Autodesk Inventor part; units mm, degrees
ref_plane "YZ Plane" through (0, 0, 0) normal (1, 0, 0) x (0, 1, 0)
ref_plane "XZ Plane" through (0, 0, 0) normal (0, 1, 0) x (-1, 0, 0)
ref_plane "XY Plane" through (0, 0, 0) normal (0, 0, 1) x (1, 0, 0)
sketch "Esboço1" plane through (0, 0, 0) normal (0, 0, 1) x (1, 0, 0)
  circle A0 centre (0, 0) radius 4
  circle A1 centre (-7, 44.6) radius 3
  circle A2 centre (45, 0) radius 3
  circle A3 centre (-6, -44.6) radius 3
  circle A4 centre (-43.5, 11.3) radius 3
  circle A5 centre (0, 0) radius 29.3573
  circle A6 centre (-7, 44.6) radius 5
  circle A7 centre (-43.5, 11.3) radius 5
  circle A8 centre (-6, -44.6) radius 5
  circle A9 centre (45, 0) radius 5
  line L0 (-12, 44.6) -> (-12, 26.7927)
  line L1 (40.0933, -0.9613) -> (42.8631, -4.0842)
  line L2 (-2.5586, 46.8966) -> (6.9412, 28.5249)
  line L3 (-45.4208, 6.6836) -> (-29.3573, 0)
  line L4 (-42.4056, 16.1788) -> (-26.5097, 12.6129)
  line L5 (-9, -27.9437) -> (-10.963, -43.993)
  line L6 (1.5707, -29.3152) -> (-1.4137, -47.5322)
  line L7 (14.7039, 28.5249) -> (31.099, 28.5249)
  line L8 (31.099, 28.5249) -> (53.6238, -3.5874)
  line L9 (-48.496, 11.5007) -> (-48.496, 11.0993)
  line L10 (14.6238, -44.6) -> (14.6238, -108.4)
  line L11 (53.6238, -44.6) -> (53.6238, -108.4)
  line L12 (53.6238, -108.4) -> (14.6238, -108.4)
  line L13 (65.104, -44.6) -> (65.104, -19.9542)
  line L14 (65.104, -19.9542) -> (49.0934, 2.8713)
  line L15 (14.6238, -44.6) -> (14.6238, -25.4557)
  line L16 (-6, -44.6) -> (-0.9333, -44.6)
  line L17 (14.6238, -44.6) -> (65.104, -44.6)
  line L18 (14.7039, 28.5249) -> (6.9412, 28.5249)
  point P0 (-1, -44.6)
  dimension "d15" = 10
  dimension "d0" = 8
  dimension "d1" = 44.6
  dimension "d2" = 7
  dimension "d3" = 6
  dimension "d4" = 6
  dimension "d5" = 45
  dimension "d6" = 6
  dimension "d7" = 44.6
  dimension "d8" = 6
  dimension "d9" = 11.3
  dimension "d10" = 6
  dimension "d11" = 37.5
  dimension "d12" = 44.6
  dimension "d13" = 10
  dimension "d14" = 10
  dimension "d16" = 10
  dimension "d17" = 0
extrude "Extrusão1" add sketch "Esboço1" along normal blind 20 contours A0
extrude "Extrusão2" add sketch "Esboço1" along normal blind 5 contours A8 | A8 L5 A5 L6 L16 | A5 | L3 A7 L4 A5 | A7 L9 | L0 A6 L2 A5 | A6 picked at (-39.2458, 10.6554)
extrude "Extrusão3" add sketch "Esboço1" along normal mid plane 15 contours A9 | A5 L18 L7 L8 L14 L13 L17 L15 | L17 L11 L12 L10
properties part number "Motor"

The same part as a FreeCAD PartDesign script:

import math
import FreeCAD as App
import Part
import Sketcher

V = App.Vector
Q = App.Units.Quantity

doc = App.newDocument("Part")
body = doc.addObject("PartDesign::Body", "Body")

# Sketch on XY plane
sketch1 = body.newObject("Sketcher::SketchObject", "Sketch")
sketch1.AttachmentSupport = (doc.getObject("XY_Plane"), [""])
sketch1.MapMode = "FlatFace"
sketch1.addGeometry(Part.Circle(V(0, 0, 0), V(0, 0, 1), 4), False)
sketch1.addConstraint(Sketcher.Constraint("Coincident", 0, 3, -1, 1))
sketch1.addConstraint(Sketcher.Constraint("Diameter", 0, Q("8 mm")))
pad1 = body.newObject("PartDesign::Pad", "Pad")
pad1.Profile = sketch1
pad1.Length = 20

# Sketch on XY plane
sketch2 = body.newObject("Sketcher::SketchObject", "Sketch001")
sketch2.AttachmentSupport = (doc.getObject("XY_Plane"), [""])
sketch2.MapMode = "FlatFace"
sketch2.addGeometry(Part.LineSegment(V(-1, -44.6, 0), V(-0.93, -44.6, 0)), False)
sketch2.addGeometry(Part.LineSegment(V(-0.93, -44.6, 0), V(1.57, -29.32, 0)), False)
sketch2.addGeometry(Part.ArcOfCircle(Part.Circle(V(0, 0, 0), V(0, 0, 1), 29.36), math.radians(-87), math.radians(76)), False)
sketch2.addGeometry(Part.LineSegment(V(6.94, 28.52, 0), V(-2.56, 46.9, 0)), False)
sketch2.addGeometry(Part.ArcOfCircle(Part.Circle(V(-7, 44.6, 0), V(0, 0, 1), 5), math.radians(27), math.radians(180)), False)
sketch2.addGeometry(Part.LineSegment(V(-12, 44.6, 0), V(-12, 26.79, 0)), False)
sketch2.addGeometry(Part.ArcOfCircle(Part.Circle(V(0, 0, 0), V(0, 0, 1), 29.36), math.radians(114), math.radians(155)), False)
sketch2.addGeometry(Part.LineSegment(V(-26.51, 12.61, 0), V(-42.41, 16.18, 0)), False)
sketch2.addGeometry(Part.ArcOfCircle(Part.Circle(V(-43.5, 11.3, 0), V(0, 0, 1), 5), math.radians(77), math.radians(178)), False)
sketch2.addGeometry(Part.LineSegment(V(-48.5, 11.5, 0), V(-48.5, 11.1, 0)), False)
sketch2.addGeometry(Part.ArcOfCircle(Part.Circle(V(-43.5, 11.3, 0), V(0, 0, 1), 5), math.radians(-178), math.radians(-113)), False)
sketch2.addGeometry(Part.LineSegment(V(-45.42, 6.68, 0), V(-29.36, 0, 0)), False)
sketch2.addGeometry(Part.ArcOfCircle(Part.Circle(V(0, 0, 0), V(0, 0, 1), 29.36), math.radians(180), math.radians(252)), False)
sketch2.addGeometry(Part.LineSegment(V(-9, -27.94, 0), V(-10.96, -43.99, 0)), False)
sketch2.addGeometry(Part.ArcOfCircle(Part.Circle(V(-6, -44.6, 0), V(0, 0, 1), 5), math.radians(173), math.radians(360)), False)
sketch2.addGeometry(Part.Circle(V(-6, -44.6, 0), V(0, 0, 1), 3), False)
sketch2.addGeometry(Part.Circle(V(0, 0, 0), V(0, 0, 1), 4), False)
sketch2.addGeometry(Part.Circle(V(-43.5, 11.3, 0), V(0, 0, 1), 3), False)
sketch2.addGeometry(Part.Circle(V(-7, 44.6, 0), V(0, 0, 1), 3), False)
sketch2.addConstraint(Sketcher.Constraint("Coincident", 0, 2, 1, 1))
sketch2.addConstraint(Sketcher.Constraint("Coincident", 1, 2, 2, 1))
sketch2.addConstraint(Sketcher.Constraint("Coincident", 2, 2, 3, 1))
sketch2.addConstraint(Sketcher.Constraint("Tangent", 3, 2, 4, 1))
sketch2.addConstraint(Sketcher.Constraint("Tangent", 4, 2, 5, 1))
sketch2.addConstraint(Sketcher.Constraint("Coincident", 5, 2, 6, 1))
sketch2.addConstraint(Sketcher.Constraint("Coincident", 6, 2, 7, 1))
sketch2.addConstraint(Sketcher.Constraint("Tangent", 7, 2, 8, 1))
sketch2.addConstraint(Sketcher.Constraint("Coincident", 8, 2, 9, 1))
sketch2.addConstraint(Sketcher.Constraint("Coincident", 9, 2, 10, 1))
sketch2.addConstraint(Sketcher.Constraint("Tangent", 10, 2, 11, 1))
sketch2.addConstraint(Sketcher.Constraint("Coincident", 11, 2, 12, 1))
sketch2.addConstraint(Sketcher.Constraint("Coincident", 12, 2, 13, 1))
sketch2.addConstraint(Sketcher.Constraint("Tangent", 13, 2, 14, 1))
sketch2.addConstraint(Sketcher.Constraint("Coincident", 14, 2, 0, 1))
sketch2.addConstraint(Sketcher.Constraint("Horizontal", 0))
sketch2.addConstraint(Sketcher.Constraint("Vertical", 5))
sketch2.addConstraint(Sketcher.Constraint("Vertical", 9))
sketch2.addConstraint(Sketcher.Constraint("Coincident", 2, 3, -1, 1))
sketch2.addConstraint(Sketcher.Constraint("Coincident", 6, 3, -1, 1))
sketch2.addConstraint(Sketcher.Constraint("Coincident", 12, 3, -1, 1))
sketch2.addConstraint(Sketcher.Constraint("Coincident", 16, 3, -1, 1))
sketch2.addConstraint(Sketcher.Constraint("Coincident", 10, 3, 8, 3))
sketch2.addConstraint(Sketcher.Constraint("Coincident", 15, 3, 14, 3))
sketch2.addConstraint(Sketcher.Constraint("Coincident", 17, 3, 8, 3))
sketch2.addConstraint(Sketcher.Constraint("Coincident", 18, 3, 4, 3))
sketch2.addConstraint(Sketcher.Constraint("Equal", 2, 6))
sketch2.addConstraint(Sketcher.Constraint("Equal", 4, 8))
sketch2.addConstraint(Sketcher.Constraint("Equal", 8, 10))
sketch2.addConstraint(Sketcher.Constraint("Equal", 6, 12))
sketch2.addConstraint(Sketcher.Constraint("Equal", 10, 14))
sketch2.addConstraint(Sketcher.Constraint("Equal", 15, 17))
sketch2.addConstraint(Sketcher.Constraint("Equal", 17, 18))
sketch2.addConstraint(Sketcher.Constraint("PointOnObject", 11, 2, -1))
sketch2.addConstraint(Sketcher.Constraint("Horizontal", 15, 3, 0, 2))
sketch2.addConstraint(Sketcher.Constraint("Diameter", 15, Q("6 mm")))
sketch2.addConstraint(Sketcher.Constraint("Diameter", 16, Q("8 mm")))
sketch2.addConstraint(Sketcher.Constraint("Radius", 4, Q("5 mm")))
sketch2.addConstraint(Sketcher.Constraint("DistanceX", 4, 3, -1, 1, Q("7 mm")))
sketch2.addConstraint(Sketcher.Constraint("DistanceX", 14, 3, -1, 1, Q("6 mm")))
sketch2.addConstraint(Sketcher.Constraint("DistanceY", -1, 1, 4, 3, Q("44.6 mm")))
sketch2.addConstraint(Sketcher.Constraint("DistanceY", -1, 1, 8, 3, Q("11.3 mm")))
sketch2.addConstraint(Sketcher.Constraint("DistanceY", 14, 3, -1, 1, Q("44.6 mm")))
sketch2.addConstraint(Sketcher.Constraint("DistanceX", 8, 3, 14, 3, Q("37.5 mm")))
sketch2.addConstraint(Sketcher.Constraint("DistanceX", 12, 2, -1, 1, Q("9 mm")))
sketch2.addConstraint(Sketcher.Constraint("Angle", 11, Q("-22.591 deg")))
sketch2.addConstraint(Sketcher.Constraint("Distance", 7, Q("16.291 mm")))
sketch2.addConstraint(Sketcher.Constraint("DistanceX", 0, 1, 0, 2, Q("0.0667 mm")))
sketch2.addConstraint(Sketcher.Constraint("DistanceY", 9, 2, 9, 1, Q("0.4014 mm")))
sketch2.addConstraint(Sketcher.Constraint("DistanceY", -1, 1, 2, 2, Q("28.525 mm")))
sketch2.addConstraint(Sketcher.Constraint("DistanceX", 0, 2, 1, 2, Q("2.504 mm")))
pad2 = body.newObject("PartDesign::Pad", "Pad001")
pad2.Profile = sketch2
pad2.Length = 5

# Sketch on XY plane
sketch3 = body.newObject("Sketcher::SketchObject", "Sketch002")
sketch3.AttachmentSupport = (doc.getObject("XY_Plane"), [""])
sketch3.MapMode = "FlatFace"
sketch3.addGeometry(Part.LineSegment(V(14.6, -25.5, 0), V(14.6, -108.4, 0)), False)
sketch3.addGeometry(Part.LineSegment(V(14.6, -108.4, 0), V(53.6, -108.4, 0)), False)
sketch3.addGeometry(Part.LineSegment(V(53.6, -108.4, 0), V(53.6, -44.6, 0)), False)
sketch3.addGeometry(Part.LineSegment(V(53.6, -44.6, 0), V(65.1, -44.6, 0)), False)
sketch3.addGeometry(Part.LineSegment(V(65.1, -44.6, 0), V(65.1, -20, 0)), False)
sketch3.addGeometry(Part.LineSegment(V(65.1, -20, 0), V(53.6, -3.6, 0)), False)
sketch3.addGeometry(Part.LineSegment(V(53.6, -3.6, 0), V(31.1, 28.5, 0)), False)
sketch3.addGeometry(Part.LineSegment(V(31.1, 28.5, 0), V(6.9, 28.5, 0)), False)
sketch3.addGeometry(Part.ArcOfCircle(Part.Circle(V(0, 0, 0), V(0, 0, 1), 29.4), math.radians(-60), math.radians(76)), False)
sketch3.addGeometry(Part.Circle(V(45, 0, 0), V(0, 0, 1), 3), False)
sketch3.addConstraint(Sketcher.Constraint("Coincident", 0, 2, 1, 1))
sketch3.addConstraint(Sketcher.Constraint("Coincident", 1, 2, 2, 1))
sketch3.addConstraint(Sketcher.Constraint("Coincident", 2, 2, 3, 1))
sketch3.addConstraint(Sketcher.Constraint("Coincident", 3, 2, 4, 1))
sketch3.addConstraint(Sketcher.Constraint("Coincident", 4, 2, 5, 1))
sketch3.addConstraint(Sketcher.Constraint("Coincident", 5, 2, 6, 1))
sketch3.addConstraint(Sketcher.Constraint("Coincident", 6, 2, 7, 1))
sketch3.addConstraint(Sketcher.Constraint("Coincident", 7, 2, 8, 2))
sketch3.addConstraint(Sketcher.Constraint("Coincident", 8, 1, 0, 1))
sketch3.addConstraint(Sketcher.Constraint("Vertical", 0))
sketch3.addConstraint(Sketcher.Constraint("Horizontal", 1))
sketch3.addConstraint(Sketcher.Constraint("Vertical", 2))
sketch3.addConstraint(Sketcher.Constraint("Horizontal", 3))
sketch3.addConstraint(Sketcher.Constraint("Vertical", 4))
sketch3.addConstraint(Sketcher.Constraint("Horizontal", 7))
sketch3.addConstraint(Sketcher.Constraint("Coincident", 8, 3, -1, 1))
sketch3.addConstraint(Sketcher.Constraint("PointOnObject", 9, 3, -1))
sketch3.addConstraint(Sketcher.Constraint("Parallel", 5, 6))
sketch3.addConstraint(Sketcher.Constraint("Vertical", 2, 2, 5, 2))
sketch3.addConstraint(Sketcher.Constraint("Diameter", 9, Q("6 mm")))
sketch3.addConstraint(Sketcher.Constraint("DistanceX", -1, 1, 9, 3, Q("45 mm")))
sketch3.addConstraint(Sketcher.Constraint("DistanceY", 2, 2, -1, 1, Q("44.6 mm")))
sketch3.addConstraint(Sketcher.Constraint("DistanceX", 1, 1, 1, 2, Q("39 mm")))
sketch3.addConstraint(Sketcher.Constraint("DistanceY", 2, 1, 2, 2, Q("63.8 mm")))
sketch3.addConstraint(Sketcher.Constraint("Radius", 8, Q("29.3573 mm")))
sketch3.addConstraint(Sketcher.Constraint("DistanceX", 3, 1, 3, 2, Q("11.4802 mm")))
sketch3.addConstraint(Sketcher.Constraint("DistanceX", 7, 2, 7, 1, Q("24.1578 mm")))
sketch3.addConstraint(Sketcher.Constraint("DistanceY", 0, 2, 0, 1, Q("82.9443 mm")))
sketch3.addConstraint(Sketcher.Constraint("DistanceY", 4, 1, 4, 2, Q("24.6458 mm")))
sketch3.addConstraint(Sketcher.Constraint("DistanceX", -1, 1, 6, 2, Q("31.099 mm")))
pad3 = body.newObject("PartDesign::Pad", "Pad002")
pad3.Profile = sketch3
pad3.Length = 15
pad3.Midplane = True

doc.recompute()
